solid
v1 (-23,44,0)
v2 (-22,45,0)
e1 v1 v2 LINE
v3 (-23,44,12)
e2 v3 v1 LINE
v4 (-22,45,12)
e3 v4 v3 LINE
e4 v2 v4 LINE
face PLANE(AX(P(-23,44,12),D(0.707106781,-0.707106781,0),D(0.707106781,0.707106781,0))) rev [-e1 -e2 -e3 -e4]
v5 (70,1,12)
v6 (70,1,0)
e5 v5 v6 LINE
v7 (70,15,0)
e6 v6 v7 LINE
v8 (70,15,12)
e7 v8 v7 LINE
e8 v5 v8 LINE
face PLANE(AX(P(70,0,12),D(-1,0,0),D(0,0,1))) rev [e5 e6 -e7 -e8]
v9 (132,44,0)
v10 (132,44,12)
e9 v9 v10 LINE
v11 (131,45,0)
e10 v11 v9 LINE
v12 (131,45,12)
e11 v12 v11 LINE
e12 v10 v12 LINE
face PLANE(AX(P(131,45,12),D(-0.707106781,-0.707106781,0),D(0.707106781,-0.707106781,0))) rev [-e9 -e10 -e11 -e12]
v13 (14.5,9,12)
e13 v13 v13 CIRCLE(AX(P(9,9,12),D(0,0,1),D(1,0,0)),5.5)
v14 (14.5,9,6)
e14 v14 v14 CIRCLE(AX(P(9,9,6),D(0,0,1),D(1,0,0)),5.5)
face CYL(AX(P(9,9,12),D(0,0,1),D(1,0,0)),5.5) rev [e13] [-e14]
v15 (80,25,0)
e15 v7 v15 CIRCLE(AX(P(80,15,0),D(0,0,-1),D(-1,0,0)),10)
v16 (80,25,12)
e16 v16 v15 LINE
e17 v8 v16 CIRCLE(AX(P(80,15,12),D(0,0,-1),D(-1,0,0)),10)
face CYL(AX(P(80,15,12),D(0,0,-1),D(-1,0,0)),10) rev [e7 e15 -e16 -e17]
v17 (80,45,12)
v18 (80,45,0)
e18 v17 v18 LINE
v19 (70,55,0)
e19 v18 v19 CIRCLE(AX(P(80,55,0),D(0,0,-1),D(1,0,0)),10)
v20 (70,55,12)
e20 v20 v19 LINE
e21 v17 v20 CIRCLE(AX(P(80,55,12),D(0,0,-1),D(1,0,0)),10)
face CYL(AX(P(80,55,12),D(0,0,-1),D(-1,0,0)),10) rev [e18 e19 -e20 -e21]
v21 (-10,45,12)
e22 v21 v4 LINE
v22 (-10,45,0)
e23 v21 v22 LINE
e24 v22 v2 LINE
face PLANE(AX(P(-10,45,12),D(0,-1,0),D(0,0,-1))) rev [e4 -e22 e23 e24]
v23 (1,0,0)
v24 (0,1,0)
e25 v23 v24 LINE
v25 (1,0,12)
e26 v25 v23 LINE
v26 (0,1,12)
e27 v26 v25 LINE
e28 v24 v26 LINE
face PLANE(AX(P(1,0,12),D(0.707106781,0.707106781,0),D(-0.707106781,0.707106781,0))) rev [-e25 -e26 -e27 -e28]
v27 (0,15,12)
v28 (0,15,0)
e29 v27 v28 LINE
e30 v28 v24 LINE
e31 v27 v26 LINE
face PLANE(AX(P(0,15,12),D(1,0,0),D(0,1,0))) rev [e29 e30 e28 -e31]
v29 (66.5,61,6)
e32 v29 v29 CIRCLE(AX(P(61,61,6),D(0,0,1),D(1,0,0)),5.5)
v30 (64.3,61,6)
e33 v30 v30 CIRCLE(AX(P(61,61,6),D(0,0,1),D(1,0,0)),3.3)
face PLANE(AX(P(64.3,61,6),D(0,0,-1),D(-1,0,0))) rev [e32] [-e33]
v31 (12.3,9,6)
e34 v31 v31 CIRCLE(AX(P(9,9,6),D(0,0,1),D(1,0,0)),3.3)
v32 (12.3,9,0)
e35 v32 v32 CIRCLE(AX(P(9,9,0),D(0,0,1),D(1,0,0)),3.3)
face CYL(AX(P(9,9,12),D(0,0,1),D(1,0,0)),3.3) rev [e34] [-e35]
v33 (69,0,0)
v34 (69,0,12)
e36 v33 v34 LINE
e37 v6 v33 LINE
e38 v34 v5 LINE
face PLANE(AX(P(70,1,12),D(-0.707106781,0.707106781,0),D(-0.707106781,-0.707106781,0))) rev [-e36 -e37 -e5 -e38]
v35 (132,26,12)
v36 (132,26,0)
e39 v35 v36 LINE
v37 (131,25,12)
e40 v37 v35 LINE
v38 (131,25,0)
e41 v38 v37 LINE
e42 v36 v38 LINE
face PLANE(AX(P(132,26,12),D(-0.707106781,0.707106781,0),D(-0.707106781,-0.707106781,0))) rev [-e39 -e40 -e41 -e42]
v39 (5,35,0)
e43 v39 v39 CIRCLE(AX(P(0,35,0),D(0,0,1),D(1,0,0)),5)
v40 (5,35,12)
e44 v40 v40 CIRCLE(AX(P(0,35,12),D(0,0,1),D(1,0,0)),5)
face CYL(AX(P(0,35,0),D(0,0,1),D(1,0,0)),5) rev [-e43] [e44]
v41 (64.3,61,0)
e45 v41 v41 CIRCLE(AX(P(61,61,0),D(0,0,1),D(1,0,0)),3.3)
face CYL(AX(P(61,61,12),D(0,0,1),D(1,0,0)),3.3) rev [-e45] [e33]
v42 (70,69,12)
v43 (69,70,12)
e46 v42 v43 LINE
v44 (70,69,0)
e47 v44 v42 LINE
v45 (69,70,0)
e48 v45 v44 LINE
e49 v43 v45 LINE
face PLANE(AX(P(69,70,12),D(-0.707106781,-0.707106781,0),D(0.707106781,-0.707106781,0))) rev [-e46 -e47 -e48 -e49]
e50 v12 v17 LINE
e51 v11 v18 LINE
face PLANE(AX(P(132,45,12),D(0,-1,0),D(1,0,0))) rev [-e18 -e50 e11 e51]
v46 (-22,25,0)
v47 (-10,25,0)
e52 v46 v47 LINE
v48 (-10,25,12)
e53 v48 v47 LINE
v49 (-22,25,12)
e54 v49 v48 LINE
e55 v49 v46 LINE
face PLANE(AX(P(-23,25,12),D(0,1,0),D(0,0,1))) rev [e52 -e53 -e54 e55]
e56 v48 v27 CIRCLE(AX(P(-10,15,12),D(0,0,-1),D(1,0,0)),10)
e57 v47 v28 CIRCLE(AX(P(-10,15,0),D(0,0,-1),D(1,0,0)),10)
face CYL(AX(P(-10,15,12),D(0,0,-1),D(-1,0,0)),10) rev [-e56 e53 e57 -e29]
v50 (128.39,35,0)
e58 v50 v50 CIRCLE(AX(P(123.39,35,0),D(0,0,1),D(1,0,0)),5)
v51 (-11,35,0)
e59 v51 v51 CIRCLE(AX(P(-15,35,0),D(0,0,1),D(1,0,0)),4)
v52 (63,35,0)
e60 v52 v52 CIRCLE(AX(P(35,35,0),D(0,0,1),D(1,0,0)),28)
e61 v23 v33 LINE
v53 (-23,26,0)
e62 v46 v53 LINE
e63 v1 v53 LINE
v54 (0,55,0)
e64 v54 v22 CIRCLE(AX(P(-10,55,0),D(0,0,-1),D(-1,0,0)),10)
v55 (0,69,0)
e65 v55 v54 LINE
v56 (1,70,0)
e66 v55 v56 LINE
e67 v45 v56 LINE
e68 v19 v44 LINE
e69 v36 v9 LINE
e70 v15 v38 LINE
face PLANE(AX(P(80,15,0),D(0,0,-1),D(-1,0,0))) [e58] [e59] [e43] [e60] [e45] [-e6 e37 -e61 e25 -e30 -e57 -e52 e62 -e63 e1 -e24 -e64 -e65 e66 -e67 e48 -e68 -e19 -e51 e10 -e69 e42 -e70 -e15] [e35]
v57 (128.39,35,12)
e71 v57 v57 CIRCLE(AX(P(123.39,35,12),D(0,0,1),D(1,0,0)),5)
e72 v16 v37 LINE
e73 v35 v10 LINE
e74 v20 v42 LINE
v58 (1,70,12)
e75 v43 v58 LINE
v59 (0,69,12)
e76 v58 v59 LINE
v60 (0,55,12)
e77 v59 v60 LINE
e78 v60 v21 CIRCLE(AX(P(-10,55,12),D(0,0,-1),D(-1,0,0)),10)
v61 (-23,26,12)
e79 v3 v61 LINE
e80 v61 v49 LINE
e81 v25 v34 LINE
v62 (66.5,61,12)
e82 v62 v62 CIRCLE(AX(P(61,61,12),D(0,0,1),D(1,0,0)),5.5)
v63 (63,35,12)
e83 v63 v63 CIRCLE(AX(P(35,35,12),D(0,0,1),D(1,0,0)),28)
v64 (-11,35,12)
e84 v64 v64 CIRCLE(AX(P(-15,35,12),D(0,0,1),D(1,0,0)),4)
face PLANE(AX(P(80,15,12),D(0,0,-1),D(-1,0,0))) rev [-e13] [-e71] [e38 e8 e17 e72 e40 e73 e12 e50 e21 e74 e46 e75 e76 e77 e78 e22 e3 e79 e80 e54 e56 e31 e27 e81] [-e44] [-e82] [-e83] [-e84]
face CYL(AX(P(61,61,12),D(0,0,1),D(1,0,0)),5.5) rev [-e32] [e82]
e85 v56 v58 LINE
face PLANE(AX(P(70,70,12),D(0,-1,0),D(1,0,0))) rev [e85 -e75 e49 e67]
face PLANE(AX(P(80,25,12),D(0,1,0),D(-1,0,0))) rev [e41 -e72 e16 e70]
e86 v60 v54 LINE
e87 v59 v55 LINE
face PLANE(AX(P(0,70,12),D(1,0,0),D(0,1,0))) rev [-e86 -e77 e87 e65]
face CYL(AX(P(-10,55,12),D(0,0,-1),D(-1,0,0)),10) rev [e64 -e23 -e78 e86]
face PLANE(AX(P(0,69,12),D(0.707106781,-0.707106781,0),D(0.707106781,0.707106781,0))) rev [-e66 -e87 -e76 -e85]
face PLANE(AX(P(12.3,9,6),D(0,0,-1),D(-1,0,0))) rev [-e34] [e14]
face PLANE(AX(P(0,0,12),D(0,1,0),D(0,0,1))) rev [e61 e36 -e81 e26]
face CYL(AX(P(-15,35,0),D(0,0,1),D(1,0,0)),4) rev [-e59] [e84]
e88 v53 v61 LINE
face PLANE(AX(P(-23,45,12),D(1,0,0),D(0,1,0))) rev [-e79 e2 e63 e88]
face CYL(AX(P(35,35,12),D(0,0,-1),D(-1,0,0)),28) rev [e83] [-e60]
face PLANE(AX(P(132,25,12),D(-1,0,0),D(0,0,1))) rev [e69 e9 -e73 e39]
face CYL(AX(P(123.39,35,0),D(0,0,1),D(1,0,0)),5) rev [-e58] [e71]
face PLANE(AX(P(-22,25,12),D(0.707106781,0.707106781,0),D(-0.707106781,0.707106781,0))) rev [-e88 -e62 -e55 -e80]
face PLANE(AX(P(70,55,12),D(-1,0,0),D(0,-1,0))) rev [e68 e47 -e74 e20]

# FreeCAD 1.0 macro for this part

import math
import FreeCAD as App
import Part
import Sketcher

V = App.Vector
Q = App.Units.Quantity


def edges_at(feature, points):
    """Names of the edges that pass closest to the given points."""
    edges = feature.Shape.Edges
    near = lambda p: min(range(len(edges)), key=lambda i: edges[i].distToShape(Part.Vertex(*p))[0])
    return sorted({f"Edge{near(p) + 1}" for p in points})

doc = App.newDocument("Part")
params = doc.addObject("Spreadsheet::Sheet", "Params")
for row, (alias, value) in enumerate([
    ("sketch1_diameter", "56 mm"),
    ("sketch1_radius", "10 mm"),
    ("sketch1_width", "70 mm"),
    ("sketch1_width2", "52 mm"),
    ("sketch1_width3", "13 mm"),
    ("pad1_length", "12 mm"),
    ("chamfer_size", "1 mm"),
    ("sketch2_diameter", "6.6 mm"),
    ("hole_diameter", "6.6 mm"),
    ("hole_cbore_diameter", "11 mm"),
    ("hole_cbore_depth", "6 mm"),
    ("sketch3_diameter", "10 mm"),
    ("sketch3_diameter2", "8 mm"),
], start=1):
    params.set(f"A{row}", alias)
    params.set(f"B{row}", "=" + value)
    params.setAlias(f"B{row}", alias)

body = doc.addObject("PartDesign::Body", "Body")

# Sketch on XY plane
sketch1 = doc.addObject("Sketcher::SketchObject", "Sketch")
body.addObject(sketch1)
sketch1.AttachmentSupport = (doc.XY_Plane, [""])
sketch1.MapMode = "FlatFace"
sketch1.addGeometry([
    Part.LineSegment(V(0, 0, 0), V(70, 0, 0)),  # 0
    Part.LineSegment(V(70, 0, 0), V(70, 15, 0)),  # 1
    Part.ArcOfCircle(Part.Circle(V(80, 15, 0), V(0, 0, 1), 10), math.radians(90), math.radians(180)),  # 2
    Part.LineSegment(V(80, 25, 0), V(132, 25, 0)),  # 3
    Part.LineSegment(V(132, 25, 0), V(132, 45, 0)),  # 4
    Part.LineSegment(V(132, 45, 0), V(80, 45, 0)),  # 5
    Part.ArcOfCircle(Part.Circle(V(80, 55, 0), V(0, 0, 1), 10), math.radians(180), math.radians(270)),  # 6
    Part.LineSegment(V(70, 55, 0), V(70, 70, 0)),  # 7
    Part.LineSegment(V(70, 70, 0), V(0, 70, 0)),  # 8
    Part.LineSegment(V(0, 70, 0), V(0, 55, 0)),  # 9
    Part.ArcOfCircle(Part.Circle(V(-10, 55, 0), V(0, 0, 1), 10), math.radians(-90), math.radians(0)),  # 10
    Part.LineSegment(V(-10, 45, 0), V(-23, 45, 0)),  # 11
    Part.LineSegment(V(-23, 45, 0), V(-23, 25, 0)),  # 12
    Part.LineSegment(V(-23, 25, 0), V(-10, 25, 0)),  # 13
    Part.ArcOfCircle(Part.Circle(V(-10, 15, 0), V(0, 0, 1), 10), math.radians(0), math.radians(90)),  # 14
    Part.LineSegment(V(0, 15, 0), V(0, 0, 0)),  # 15
    Part.Circle(V(35, 35, 0), V(0, 0, 1), 28),  # 16
], False)
sketch1.addConstraint([
    Sketcher.Constraint("Coincident", 0, 2, 1, 1),
    Sketcher.Constraint("Tangent", 1, 2, 2, 2),
    Sketcher.Constraint("Tangent", 2, 1, 3, 1),
    Sketcher.Constraint("Coincident", 3, 2, 4, 1),
    Sketcher.Constraint("Coincident", 4, 2, 5, 1),
    Sketcher.Constraint("Tangent", 5, 2, 6, 2),
    Sketcher.Constraint("Tangent", 6, 1, 7, 1),
    Sketcher.Constraint("Coincident", 7, 2, 8, 1),
    Sketcher.Constraint("Coincident", 8, 2, 9, 1),
    Sketcher.Constraint("Tangent", 9, 2, 10, 2),
    Sketcher.Constraint("Tangent", 10, 1, 11, 1),
    Sketcher.Constraint("Coincident", 11, 2, 12, 1),
    Sketcher.Constraint("Coincident", 12, 2, 13, 1),
    Sketcher.Constraint("Tangent", 13, 2, 14, 2),
    Sketcher.Constraint("Tangent", 14, 1, 15, 1),
    Sketcher.Constraint("Coincident", 15, 2, 0, 1),
    Sketcher.Constraint("Horizontal", 0),
    Sketcher.Constraint("Vertical", 1),
    Sketcher.Constraint("Horizontal", 3),
    Sketcher.Constraint("Vertical", 4),
    Sketcher.Constraint("Horizontal", 5),
    Sketcher.Constraint("Vertical", 7),
    Sketcher.Constraint("Horizontal", 8),
    Sketcher.Constraint("Vertical", 9),
    Sketcher.Constraint("Horizontal", 11),
    Sketcher.Constraint("Vertical", 12),
    Sketcher.Constraint("Horizontal", 13),
    Sketcher.Constraint("Vertical", 15),
    Sketcher.Constraint("Coincident", 15, 2, -1, 1),
    Sketcher.Constraint("Equal", 2, 6),
    Sketcher.Constraint("Equal", 6, 10),
    Sketcher.Constraint("Equal", 10, 14),
    Sketcher.Constraint("PointOnObject", 8, 2, -2),
    Sketcher.Constraint("Horizontal", 6, 3, 10, 3),
    Sketcher.Constraint("Horizontal", 2, 3, 14, 3),
    Sketcher.Constraint("Vertical", 2, 3, 6, 3),
    Sketcher.Constraint("Equal", 1, 7),
    Sketcher.Constraint("Diameter", 16, Q("56 mm")),
    Sketcher.Constraint("Radius", 2, Q("10 mm")),
    Sketcher.Constraint("DistanceX", 0, 1, 0, 2, Q("70 mm")),
    Sketcher.Constraint("DistanceX", 3, 1, 3, 2, Q("52 mm")),
    Sketcher.Constraint("DistanceX", 11, 2, 11, 1, Q("13 mm")),
    Sketcher.Constraint("DistanceY", 1, 1, 1, 2, Q("15 mm")),
    Sketcher.Constraint("DistanceY", 4, 1, 4, 2, Q("20 mm")),
    Sketcher.Constraint("DistanceX", -1, 1, 16, 3, Q("35 mm")),
    Sketcher.Constraint("DistanceY", -1, 1, 16, 3, Q("35 mm")),
])
sketch1.setExpression("Constraints[37]", "Params.sketch1_diameter")
sketch1.setExpression("Constraints[38]", "Params.sketch1_radius")
sketch1.setExpression("Constraints[39]", "Params.sketch1_width")
sketch1.setExpression("Constraints[40]", "Params.sketch1_width2")
sketch1.setExpression("Constraints[41]", "Params.sketch1_width3")
pad1 = doc.addObject("PartDesign::Pad", "Pad")
body.addObject(pad1)
pad1.Profile = sketch1
pad1.setExpression("Length", "Params.pad1_length")
doc.recompute()

chamfer = doc.addObject("PartDesign::Chamfer", "Chamfer")
body.addObject(chamfer)
chamfer.Base = (pad1, edges_at(pad1, [
    (-23, 45, 6),
    (-23, 25, 6),
    (0, 0, 6),
    (70, 0, 6),
    (132, 25, 6),
    (132, 45, 6),
    (70, 70, 6),
    (0, 70, 6),
]))
chamfer.setExpression("Size", "Params.chamfer_size")

# Sketch on XY plane
sketch2 = doc.addObject("Sketcher::SketchObject", "Sketch001")
body.addObject(sketch2)
sketch2.AttachmentSupport = (doc.XY_Plane, [""])
sketch2.MapMode = "FlatFace"
sketch2.AttachmentOffset = App.Placement(V(0, 0, 12), App.Rotation())
sketch2.addGeometry([
    Part.Circle(V(9, 9, 0), V(0, 0, 1), 3.3),
    Part.Circle(V(61, 61, 0), V(0, 0, 1), 3.3),
], False)
sketch2.addConstraint([
    Sketcher.Constraint("Equal", 0, 1),
    Sketcher.Constraint("Diameter", 0, Q("6.6 mm")),
    Sketcher.Constraint("DistanceX", -1, 1, 0, 3, Q("9 mm")),
    Sketcher.Constraint("DistanceY", -1, 1, 0, 3, Q("9 mm")),
    Sketcher.Constraint("DistanceX", -1, 1, 1, 3, Q("61 mm")),
    Sketcher.Constraint("DistanceY", -1, 1, 1, 3, Q("61 mm")),
])
sketch2.setExpression("Constraints[1]", "Params.sketch2_diameter")
doc.recompute()
hole = doc.addObject("PartDesign::Hole", "Hole")
body.addObject(hole)
hole.Profile = sketch2
hole.ThreadType = "None"
hole.setExpression("Diameter", "Params.hole_diameter")
hole.DepthType = "ThroughAll"
hole.HoleCutType = "Counterbore"
hole.setExpression("HoleCutDiameter", "Params.hole_cbore_diameter")
hole.setExpression("HoleCutDepth", "Params.hole_cbore_depth")

# Sketch on XY plane
sketch3 = doc.addObject("Sketcher::SketchObject", "Sketch002")
body.addObject(sketch3)
sketch3.AttachmentSupport = (doc.XY_Plane, [""])
sketch3.MapMode = "FlatFace"
sketch3.AttachmentOffset = App.Placement(V(0, 0, 12), App.Rotation())
sketch3.addGeometry([
    Part.Circle(V(0, 35, 0), V(0, 0, 1), 5),
    Part.Circle(V(-15, 35, 0), V(0, 0, 1), 4),
    Part.Circle(V(123.4, 35, 0), V(0, 0, 1), 5),
], False)
sketch3.addConstraint([
    Sketcher.Constraint("Equal", 0, 2),
    Sketcher.Constraint("PointOnObject", 0, 3, -2),
    Sketcher.Constraint("Horizontal", 0, 3, 1, 3),
    Sketcher.Constraint("Horizontal", 1, 3, 2, 3),
    Sketcher.Constraint("Diameter", 0, Q("10 mm")),
    Sketcher.Constraint("Diameter", 1, Q("8 mm")),
    Sketcher.Constraint("DistanceY", -1, 1, 0, 3, Q("35 mm")),
    Sketcher.Constraint("DistanceX", 1, 3, -1, 1, Q("15 mm")),
    Sketcher.Constraint("DistanceX", -1, 1, 2, 3, Q("123.39 mm")),
])
sketch3.setExpression("Constraints[4]", "Params.sketch3_diameter")
sketch3.setExpression("Constraints[5]", "Params.sketch3_diameter2")
pocket1 = doc.addObject("PartDesign::Pocket", "Pocket")
body.addObject(pocket1)
pocket1.Profile = sketch3
pocket1.Type = "ThroughAll"

doc.recompute()
